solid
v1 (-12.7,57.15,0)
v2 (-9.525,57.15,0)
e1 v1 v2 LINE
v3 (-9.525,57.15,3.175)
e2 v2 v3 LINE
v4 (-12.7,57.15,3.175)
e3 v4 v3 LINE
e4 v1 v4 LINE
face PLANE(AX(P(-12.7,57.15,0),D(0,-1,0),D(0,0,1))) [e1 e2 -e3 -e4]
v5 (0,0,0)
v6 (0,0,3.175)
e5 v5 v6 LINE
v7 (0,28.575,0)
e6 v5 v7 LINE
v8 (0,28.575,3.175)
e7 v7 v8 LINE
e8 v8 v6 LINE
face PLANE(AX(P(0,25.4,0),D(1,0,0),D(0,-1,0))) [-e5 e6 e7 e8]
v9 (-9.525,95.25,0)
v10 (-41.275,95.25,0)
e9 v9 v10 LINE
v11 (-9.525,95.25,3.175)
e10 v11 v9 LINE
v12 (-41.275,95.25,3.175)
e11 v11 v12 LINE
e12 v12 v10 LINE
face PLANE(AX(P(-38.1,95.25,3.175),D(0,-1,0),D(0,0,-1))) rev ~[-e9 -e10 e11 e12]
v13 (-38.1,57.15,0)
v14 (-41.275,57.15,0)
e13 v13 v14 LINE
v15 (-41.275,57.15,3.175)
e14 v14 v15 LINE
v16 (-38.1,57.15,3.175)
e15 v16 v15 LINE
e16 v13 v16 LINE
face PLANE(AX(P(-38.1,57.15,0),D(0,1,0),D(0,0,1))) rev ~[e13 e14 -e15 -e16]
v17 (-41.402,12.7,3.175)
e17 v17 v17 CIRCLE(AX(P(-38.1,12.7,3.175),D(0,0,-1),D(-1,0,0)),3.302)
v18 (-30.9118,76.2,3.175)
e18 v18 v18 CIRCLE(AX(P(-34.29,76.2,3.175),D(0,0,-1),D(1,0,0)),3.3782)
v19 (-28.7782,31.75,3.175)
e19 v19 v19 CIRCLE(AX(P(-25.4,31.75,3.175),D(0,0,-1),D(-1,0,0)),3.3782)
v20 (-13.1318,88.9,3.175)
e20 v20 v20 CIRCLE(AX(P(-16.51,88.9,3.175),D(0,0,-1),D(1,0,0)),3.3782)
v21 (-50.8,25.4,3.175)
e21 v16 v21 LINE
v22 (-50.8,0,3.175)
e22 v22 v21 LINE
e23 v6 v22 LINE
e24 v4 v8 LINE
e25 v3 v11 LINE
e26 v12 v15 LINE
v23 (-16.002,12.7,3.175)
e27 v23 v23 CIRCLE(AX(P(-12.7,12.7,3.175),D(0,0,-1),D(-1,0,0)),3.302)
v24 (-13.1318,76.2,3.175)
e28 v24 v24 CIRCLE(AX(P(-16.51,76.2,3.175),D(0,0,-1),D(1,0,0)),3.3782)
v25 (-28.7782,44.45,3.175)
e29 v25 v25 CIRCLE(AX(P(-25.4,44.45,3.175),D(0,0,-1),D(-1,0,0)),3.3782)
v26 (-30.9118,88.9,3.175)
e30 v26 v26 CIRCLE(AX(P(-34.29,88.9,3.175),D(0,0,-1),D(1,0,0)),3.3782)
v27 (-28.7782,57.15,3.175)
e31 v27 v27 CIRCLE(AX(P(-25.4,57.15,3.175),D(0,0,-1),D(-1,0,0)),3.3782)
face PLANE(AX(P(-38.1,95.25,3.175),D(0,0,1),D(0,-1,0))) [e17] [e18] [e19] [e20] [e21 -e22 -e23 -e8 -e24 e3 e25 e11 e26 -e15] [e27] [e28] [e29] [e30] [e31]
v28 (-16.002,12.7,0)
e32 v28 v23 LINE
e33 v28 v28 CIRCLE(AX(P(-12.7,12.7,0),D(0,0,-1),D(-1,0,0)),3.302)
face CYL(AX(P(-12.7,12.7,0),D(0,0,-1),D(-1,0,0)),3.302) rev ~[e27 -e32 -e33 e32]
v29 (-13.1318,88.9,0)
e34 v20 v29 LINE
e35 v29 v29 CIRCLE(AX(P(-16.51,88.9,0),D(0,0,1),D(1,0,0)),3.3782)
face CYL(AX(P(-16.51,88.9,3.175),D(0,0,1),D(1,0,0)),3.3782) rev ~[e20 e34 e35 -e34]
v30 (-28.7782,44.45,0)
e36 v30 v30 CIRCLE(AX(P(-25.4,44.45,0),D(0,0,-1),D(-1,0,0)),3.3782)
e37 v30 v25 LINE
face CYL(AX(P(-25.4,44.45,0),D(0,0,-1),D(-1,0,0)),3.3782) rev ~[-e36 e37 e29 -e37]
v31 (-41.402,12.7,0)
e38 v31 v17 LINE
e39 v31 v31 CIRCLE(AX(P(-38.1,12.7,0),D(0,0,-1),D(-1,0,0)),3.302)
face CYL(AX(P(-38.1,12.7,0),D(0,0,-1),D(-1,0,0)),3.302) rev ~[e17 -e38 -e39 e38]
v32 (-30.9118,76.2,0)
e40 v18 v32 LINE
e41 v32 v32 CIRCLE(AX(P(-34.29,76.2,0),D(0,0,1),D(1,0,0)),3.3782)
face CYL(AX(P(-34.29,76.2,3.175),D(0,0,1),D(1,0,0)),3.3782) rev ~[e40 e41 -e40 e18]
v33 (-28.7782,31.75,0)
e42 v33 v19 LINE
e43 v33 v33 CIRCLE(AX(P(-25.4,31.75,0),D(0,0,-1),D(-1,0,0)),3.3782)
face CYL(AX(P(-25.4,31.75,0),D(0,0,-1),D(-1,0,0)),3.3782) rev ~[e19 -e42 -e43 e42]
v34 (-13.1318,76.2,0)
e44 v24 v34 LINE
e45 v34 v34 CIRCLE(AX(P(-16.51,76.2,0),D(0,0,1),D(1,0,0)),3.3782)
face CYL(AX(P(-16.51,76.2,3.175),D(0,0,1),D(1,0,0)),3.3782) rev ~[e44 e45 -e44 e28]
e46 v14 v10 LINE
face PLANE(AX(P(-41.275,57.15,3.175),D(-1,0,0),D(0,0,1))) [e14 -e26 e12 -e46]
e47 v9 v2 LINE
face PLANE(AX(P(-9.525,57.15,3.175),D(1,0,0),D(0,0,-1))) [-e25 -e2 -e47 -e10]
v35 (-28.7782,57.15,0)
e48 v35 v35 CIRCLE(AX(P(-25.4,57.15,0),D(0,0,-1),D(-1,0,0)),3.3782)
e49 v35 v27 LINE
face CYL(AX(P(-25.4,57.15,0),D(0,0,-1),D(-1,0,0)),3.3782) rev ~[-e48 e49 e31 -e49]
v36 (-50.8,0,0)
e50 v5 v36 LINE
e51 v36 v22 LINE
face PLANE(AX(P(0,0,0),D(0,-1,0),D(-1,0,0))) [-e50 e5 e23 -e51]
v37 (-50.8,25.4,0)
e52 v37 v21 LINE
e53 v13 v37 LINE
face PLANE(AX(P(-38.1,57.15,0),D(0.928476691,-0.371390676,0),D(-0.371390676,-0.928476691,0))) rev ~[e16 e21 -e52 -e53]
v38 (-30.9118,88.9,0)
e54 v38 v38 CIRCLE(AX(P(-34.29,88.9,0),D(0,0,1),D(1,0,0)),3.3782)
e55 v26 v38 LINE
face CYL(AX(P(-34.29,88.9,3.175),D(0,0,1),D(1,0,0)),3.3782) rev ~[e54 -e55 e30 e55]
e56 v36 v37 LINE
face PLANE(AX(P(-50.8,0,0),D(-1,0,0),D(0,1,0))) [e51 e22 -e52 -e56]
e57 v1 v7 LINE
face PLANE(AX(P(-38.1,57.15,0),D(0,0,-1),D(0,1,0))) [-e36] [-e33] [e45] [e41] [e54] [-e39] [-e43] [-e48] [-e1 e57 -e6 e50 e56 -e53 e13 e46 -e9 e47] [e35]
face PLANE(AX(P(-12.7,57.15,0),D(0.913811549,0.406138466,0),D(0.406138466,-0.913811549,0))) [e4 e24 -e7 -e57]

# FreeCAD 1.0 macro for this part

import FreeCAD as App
import Part
import Sketcher
Q = App.Units.Quantity


def add_polygon(sketch, points):
    """Adds a closed chain of lines whose ends are joined by coincident constraints."""
    first, n = sketch.GeometryCount, len(points)
    for a, b in zip(points, points[1:] + points[:1]):
        sketch.addGeometry(Part.LineSegment(App.Vector(*a, 0), App.Vector(*b, 0)), False)
    for i in range(n):
        sketch.addConstraint(Sketcher.Constraint("Coincident", first + i, 2, first + (i + 1) % n, 1))

doc = App.newDocument("Part")
body = doc.addObject("PartDesign::Body", "Body")

sketch1 = body.newObject("Sketcher::SketchObject", "Sketch")
sketch1.AttachmentSupport = (doc.getObject("XY_Plane"), [""])
sketch1.MapMode = "FlatFace"
add_polygon(sketch1, [(-50.8, 0), (0, 0), (0, 28.575), (-12.7, 57.15), (-38.1, 57.15), (-50.8, 25.4)])
sketch1.addConstraint([
    Sketcher.Constraint("Horizontal", 0),
    Sketcher.Constraint("Vertical", 1),
    Sketcher.Constraint("Horizontal", 3),
    Sketcher.Constraint("Vertical", 5),
    Sketcher.Constraint("Coincident", 0, 2, -1, 1),
    Sketcher.Constraint("Equal", 3, 5),
    Sketcher.Constraint("DistanceX", 0, 1, 0, 2, Q("2 in")),
    Sketcher.Constraint("DistanceX", 3, 2, 3, 1, Q("1 in")),
    Sketcher.Constraint("DistanceX", 2, 2, -1, 1, Q("0.5 in")),
    Sketcher.Constraint("DistanceY", -1, 1, 2, 2, Q("2.25 in")),
    Sketcher.Constraint("DistanceY", 1, 1, 1, 2, Q("1.125 in")),
])
pad1 = body.newObject("PartDesign::Pad", "Pad")
pad1.Profile = sketch1
pad1.Length = Q("0.125 in")

sketch2 = body.newObject("Sketcher::SketchObject", "Sketch001")
sketch2.AttachmentSupport = (doc.getObject("XY_Plane"), [""])
sketch2.MapMode = "FlatFace"
sketch2.AttachmentOffset = App.Placement(App.Vector(0, 0, 0.125 * 25.4), App.Rotation())
add_polygon(sketch2, [(-38.1, 57.15), (-12.7, 57.15), (-12.7, 95.25), (-38.1, 95.25)])
sketch2.addConstraint([
    Sketcher.Constraint("Horizontal", 0),
    Sketcher.Constraint("Vertical", 1),
    Sketcher.Constraint("Horizontal", 2),
    Sketcher.Constraint("Vertical", 3),
    Sketcher.Constraint("DistanceY", 1, 1, 1, 2, Q("1.5 in")),
    Sketcher.Constraint("DistanceX", 2, 2, -1, 1, Q("1.5 in")),
    Sketcher.Constraint("DistanceX", 0, 1, 0, 2, Q("1 in")),
    Sketcher.Constraint("DistanceY", -1, 1, 0, 2, Q("2.25 in")),
])
pad2 = body.newObject("PartDesign::Pad", "Pad001")
pad2.Profile = sketch2
pad2.Length = Q("0.125 in")
pad2.Reversed = True

sketch3 = body.newObject("Sketcher::SketchObject", "Sketch002")
sketch3.AttachmentSupport = (doc.getObject("XY_Plane"), [""])
sketch3.MapMode = "FlatFace"
sketch3.addGeometry([
    Part.Circle(App.Vector(-25.4, 57.15, 0), App.Vector(0, 0, 1), 3.3782),
    Part.Circle(App.Vector(-25.4, 44.45, 0), App.Vector(0, 0, 1), 3.3782),
    Part.Circle(App.Vector(-25.4, 31.75, 0), App.Vector(0, 0, 1), 3.3782),
    Part.Circle(App.Vector(-12.7, 12.7, 0), App.Vector(0, 0, 1), 3.302),
    Part.Circle(App.Vector(-38.1, 12.7, 0), App.Vector(0, 0, 1), 3.302),
], False)
sketch3.addConstraint([
    Sketcher.Constraint("Equal", 0, 1),
    Sketcher.Constraint("Equal", 1, 2),
    Sketcher.Constraint("Equal", 3, 4),
    Sketcher.Constraint("Horizontal", 3, 3, 4, 3),
    Sketcher.Constraint("Vertical", 0, 3, 1, 3),
    Sketcher.Constraint("Vertical", 1, 3, 2, 3),
    Sketcher.Constraint("Diameter", 3, Q("0.26 in")),
    Sketcher.Constraint("Diameter", 0, Q("0.266 in")),
    Sketcher.Constraint("DistanceX", 0, 3, -1, 1, Q("1 in")),
    Sketcher.Constraint("DistanceY", 2, 3, 0, 3, Q("1 in")),
    Sketcher.Constraint("DistanceX", 4, 3, 3, 3, Q("1 in")),
    Sketcher.Constraint("DistanceX", 3, 3, -1, 1, Q("0.5 in")),
    Sketcher.Constraint("DistanceY", -1, 1, 3, 3, Q("0.5 in")),
    Sketcher.Constraint("DistanceY", 1, 3, 0, 3, Q("0.5 in")),
    Sketcher.Constraint("DistanceY", -1, 1, 0, 3, Q("2.25 in")),
])
pocket1 = body.newObject("PartDesign::Pocket", "Pocket")
pocket1.Profile = sketch3
pocket1.Length = Q("0.125 in")
pocket1.Reversed = True

sketch4 = body.newObject("Sketcher::SketchObject", "Sketch003")
sketch4.AttachmentSupport = (doc.getObject("XY_Plane"), [""])
sketch4.MapMode = "FlatFace"
sketch4.AttachmentOffset = App.Placement(App.Vector(0, 0, 0.125 * 25.4), App.Rotation())
sketch4.addGeometry([
    Part.Circle(App.Vector(-34.29, 76.2, 0), App.Vector(0, 0, 1), 3.3782),
    Part.Circle(App.Vector(-34.29, 88.9, 0), App.Vector(0, 0, 1), 3.3782),
    Part.Circle(App.Vector(-16.51, 76.2, 0), App.Vector(0, 0, 1), 3.3782),
    Part.Circle(App.Vector(-16.51, 88.9, 0), App.Vector(0, 0, 1), 3.3782),
], False)
sketch4.addConstraint([
    Sketcher.Constraint("Equal", 0, 1),
    Sketcher.Constraint("Equal", 1, 2),
    Sketcher.Constraint("Equal", 2, 3),
    Sketcher.Constraint("Horizontal", 0, 3, 2, 3),
    Sketcher.Constraint("Horizontal", 1, 3, 3, 3),
    Sketcher.Constraint("Vertical", 0, 3, 1, 3),
    Sketcher.Constraint("Vertical", 2, 3, 3, 3),
    Sketcher.Constraint("Diameter", 0, Q("0.266 in")),
    Sketcher.Constraint("DistanceY", 0, 3, 1, 3, Q("0.5 in")),
    Sketcher.Constraint("DistanceY", -1, 1, 0, 3, Q("3 in")),
    Sketcher.Constraint("DistanceX", 0, 3, 2, 3, Q("0.7 in")),
    Sketcher.Constraint("DistanceX", 0, 3, -1, 1, Q("1.35 in")),
])
pocket2 = body.newObject("PartDesign::Pocket", "Pocket001")
pocket2.Profile = sketch4
pocket2.Length = Q("1 in")

sketch5 = body.newObject("Sketcher::SketchObject", "Sketch004")
sketch5.AttachmentSupport = (doc.getObject("YZ_Plane"), [""])
sketch5.MapMode = "FlatFace"
sketch5.AttachmentOffset = App.Placement(App.Vector(0, 0, -0.5 * 25.4), App.Rotation())
add_polygon(sketch5, [(95.25, 3.175), (57.15, 3.175), (57.15, 0), (95.25, 0)])
sketch5.addConstraint([
    Sketcher.Constraint("Horizontal", 0),
    Sketcher.Constraint("Vertical", 1),
    Sketcher.Constraint("Horizontal", 2),
    Sketcher.Constraint("Vertical", 3),
    Sketcher.Constraint("PointOnObject", 1, 2, -1),
    Sketcher.Constraint("DistanceX", 0, 2, 0, 1, Q("1.5 in")),
    Sketcher.Constraint("DistanceY", 1, 2, 1, 1, Q("0.125 in")),
    Sketcher.Constraint("DistanceX", -1, 1, 0, 2, Q("2.25 in")),
])
pad3 = body.newObject("PartDesign::Pad", "Pad002")
pad3.Profile = sketch5
pad3.Length = Q("0.125 in")

sketch6 = body.newObject("Sketcher::SketchObject", "Sketch005")
sketch6.AttachmentSupport = (doc.getObject("YZ_Plane"), [""])
sketch6.MapMode = "FlatFace"
sketch6.AttachmentOffset = App.Placement(App.Vector(0, 0, -1.5 * 25.4), App.Rotation())
add_polygon(sketch6, [(57.15, 3.175), (95.25, 3.175), (95.25, 0), (57.15, 0)])
sketch6.addConstraint([
    Sketcher.Constraint("Horizontal", 0),
    Sketcher.Constraint("Vertical", 1),
    Sketcher.Constraint("Horizontal", 2),
    Sketcher.Constraint("Vertical", 3),
    Sketcher.Constraint("PointOnObject", 1, 2, -1),
    Sketcher.Constraint("DistanceX", 0, 1, 0, 2, Q("1.5 in")),
    Sketcher.Constraint("DistanceY", 1, 2, 1, 1, Q("0.125 in")),
    Sketcher.Constraint("DistanceX", -1, 1, 0, 2, Q("3.75 in")),
])
pad4 = body.newObject("PartDesign::Pad", "Pad003")
pad4.Profile = sketch6
pad4.Length = Q("0.125 in")
pad4.Reversed = True

doc.recompute()
